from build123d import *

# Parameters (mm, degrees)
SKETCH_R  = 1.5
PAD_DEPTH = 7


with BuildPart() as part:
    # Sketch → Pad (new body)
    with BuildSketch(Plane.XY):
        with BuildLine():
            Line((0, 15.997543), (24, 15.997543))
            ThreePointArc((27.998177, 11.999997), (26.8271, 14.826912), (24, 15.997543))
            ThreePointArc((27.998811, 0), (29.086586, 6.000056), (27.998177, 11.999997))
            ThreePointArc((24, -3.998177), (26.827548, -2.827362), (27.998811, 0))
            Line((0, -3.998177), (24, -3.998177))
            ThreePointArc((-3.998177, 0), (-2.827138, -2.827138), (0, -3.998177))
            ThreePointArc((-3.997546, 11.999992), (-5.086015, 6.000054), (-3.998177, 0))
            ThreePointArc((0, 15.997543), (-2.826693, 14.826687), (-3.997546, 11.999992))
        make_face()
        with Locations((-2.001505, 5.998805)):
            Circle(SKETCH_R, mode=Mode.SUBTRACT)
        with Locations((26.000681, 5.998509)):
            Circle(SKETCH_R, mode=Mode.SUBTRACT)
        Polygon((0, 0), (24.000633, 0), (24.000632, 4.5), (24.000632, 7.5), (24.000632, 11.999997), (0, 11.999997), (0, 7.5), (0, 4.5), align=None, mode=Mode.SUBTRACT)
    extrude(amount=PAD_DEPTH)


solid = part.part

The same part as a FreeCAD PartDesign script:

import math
import FreeCAD as App
import Part
import Sketcher

V = App.Vector
Q = App.Units.Quantity


def add_polygon(sketch, points):
    """Adds a closed chain of lines whose ends are joined by coincident constraints."""
    first, n = sketch.GeometryCount, len(points)
    for a, b in zip(points, points[1:] + points[:1]):
        sketch.addGeometry(Part.LineSegment(App.Vector(*a, 0), App.Vector(*b, 0)), False)
    for i in range(n):
        sketch.addConstraint(Sketcher.Constraint("Coincident", first + i, 2, first + (i + 1) % n, 1))

doc = App.newDocument("Part")
body = doc.addObject("PartDesign::Body", "Body")

sketch1 = body.newObject("Sketcher::SketchObject", "Sketch")
sketch1.AttachmentSupport = (doc.getObject("XY_Plane"), [""])
sketch1.MapMode = "FlatFace"
sketch1.addGeometry(Part.LineSegment(V(24, 16, 0), V(0, 16, 0)), False)
sketch1.addGeometry(Part.ArcOfCircle(Part.Circle(V(0, 12, 0), V(0, 0, 1), 4), math.radians(90), math.radians(180)), False)
sketch1.addGeometry(Part.ArcOfCircle(Part.Circle(V(12, 6, 0), V(0, 0, 1), 17.1), math.radians(159), math.radians(201)), False)
sketch1.addGeometry(Part.ArcOfCircle(Part.Circle(V(0, 0, 0), V(0, 0, 1), 4), math.radians(-180), math.radians(-90)), False)
sketch1.addGeometry(Part.LineSegment(V(0, -4, 0), V(24, -4, 0)), False)
sketch1.addGeometry(Part.ArcOfCircle(Part.Circle(V(24, 0, 0), V(0, 0, 1), 4), math.radians(-90), math.radians(0)), False)
sketch1.addGeometry(Part.ArcOfCircle(Part.Circle(V(12, 6, 0), V(0, 0, 1), 17.1), math.radians(-21), math.radians(21)), False)
sketch1.addGeometry(Part.ArcOfCircle(Part.Circle(V(24, 12, 0), V(0, 0, 1), 4), math.radians(0), math.radians(90)), False)
sketch1.addGeometry(Part.Circle(V(26, 6, 0), V(0, 0, 1), 1.5), False)
sketch1.addGeometry(Part.Circle(V(-2, 6, 0), V(0, 0, 1), 1.5), False)
add_polygon(sketch1, [(0, 0), (0, 12), (24, 12), (24, 4.5), (24, 0)])
sketch1.addConstraint([
    Sketcher.Constraint("Tangent", 0, 2, 1, 1),
    Sketcher.Constraint("Coincident", 1, 2, 2, 1),
    Sketcher.Constraint("Coincident", 2, 2, 3, 1),
    Sketcher.Constraint("Tangent", 3, 2, 4, 1),
    Sketcher.Constraint("Coincident", 4, 2, 5, 1),
    Sketcher.Constraint("Coincident", 5, 2, 6, 1),
    Sketcher.Constraint("Coincident", 6, 2, 7, 1),
    Sketcher.Constraint("Coincident", 7, 2, 0, 1),
    Sketcher.Constraint("Horizontal", 0),
    Sketcher.Constraint("Horizontal", 4),
    Sketcher.Constraint("Vertical", 10),
    Sketcher.Constraint("Horizontal", 11),
    Sketcher.Constraint("Vertical", 12),
    Sketcher.Constraint("Vertical", 13),
    Sketcher.Constraint("Horizontal", 14),
    Sketcher.Constraint("Coincident", 3, 3, -1, 1),
    Sketcher.Constraint("Coincident", 14, 2, -1, 1),
    Sketcher.Constraint("Coincident", 6, 3, 2, 3),
    Sketcher.Constraint("Coincident", 10, 2, 1, 3),
    Sketcher.Constraint("Coincident", 11, 2, 7, 3),
    Sketcher.Constraint("Coincident", 13, 2, 5, 3),
    Sketcher.Constraint("Equal", 8, 9),
    Sketcher.Constraint("PointOnObject", 2, 2, -1),
    Sketcher.Constraint("PointOnObject", 5, 2, -1),
    Sketcher.Constraint("Horizontal", 7, 3, 6, 2),
    Sketcher.Constraint("Vertical", 4, 2, 7, 2),
    Sketcher.Constraint("Diameter", 8, Q("3 mm")),
    Sketcher.Constraint("DistanceX", 0, 2, 0, 1, Q("24 mm")),
    Sketcher.Constraint("DistanceY", 13, 2, 13, 1, Q("4.5 mm")),
    Sketcher.Constraint("Radius", 2, Q("17.085839 mm")),
    Sketcher.Constraint("Radius", 1, Q("3.997547 mm")),
    Sketcher.Constraint("Radius", 3, Q("3.998177 mm")),
    Sketcher.Constraint("Radius", 6, Q("17.086757 mm")),
    Sketcher.Constraint("DistanceX", 11, 1, 11, 2, Q("24.000632 mm")),
    Sketcher.Constraint("DistanceX", -1, 1, 8, 3, Q("26.000681 mm")),
    Sketcher.Constraint("DistanceY", -1, 1, 8, 3, Q("5.998509 mm")),
    Sketcher.Constraint("DistanceY", 9, 3, 1, 3, Q("6.001191 mm")),
    Sketcher.Constraint("DistanceX", 9, 3, 2, 3, Q("14.001329 mm")),
])
pad1 = body.newObject("PartDesign::Pad", "Pad")
pad1.Profile = sketch1
pad1.Length = 7

doc.recompute()
